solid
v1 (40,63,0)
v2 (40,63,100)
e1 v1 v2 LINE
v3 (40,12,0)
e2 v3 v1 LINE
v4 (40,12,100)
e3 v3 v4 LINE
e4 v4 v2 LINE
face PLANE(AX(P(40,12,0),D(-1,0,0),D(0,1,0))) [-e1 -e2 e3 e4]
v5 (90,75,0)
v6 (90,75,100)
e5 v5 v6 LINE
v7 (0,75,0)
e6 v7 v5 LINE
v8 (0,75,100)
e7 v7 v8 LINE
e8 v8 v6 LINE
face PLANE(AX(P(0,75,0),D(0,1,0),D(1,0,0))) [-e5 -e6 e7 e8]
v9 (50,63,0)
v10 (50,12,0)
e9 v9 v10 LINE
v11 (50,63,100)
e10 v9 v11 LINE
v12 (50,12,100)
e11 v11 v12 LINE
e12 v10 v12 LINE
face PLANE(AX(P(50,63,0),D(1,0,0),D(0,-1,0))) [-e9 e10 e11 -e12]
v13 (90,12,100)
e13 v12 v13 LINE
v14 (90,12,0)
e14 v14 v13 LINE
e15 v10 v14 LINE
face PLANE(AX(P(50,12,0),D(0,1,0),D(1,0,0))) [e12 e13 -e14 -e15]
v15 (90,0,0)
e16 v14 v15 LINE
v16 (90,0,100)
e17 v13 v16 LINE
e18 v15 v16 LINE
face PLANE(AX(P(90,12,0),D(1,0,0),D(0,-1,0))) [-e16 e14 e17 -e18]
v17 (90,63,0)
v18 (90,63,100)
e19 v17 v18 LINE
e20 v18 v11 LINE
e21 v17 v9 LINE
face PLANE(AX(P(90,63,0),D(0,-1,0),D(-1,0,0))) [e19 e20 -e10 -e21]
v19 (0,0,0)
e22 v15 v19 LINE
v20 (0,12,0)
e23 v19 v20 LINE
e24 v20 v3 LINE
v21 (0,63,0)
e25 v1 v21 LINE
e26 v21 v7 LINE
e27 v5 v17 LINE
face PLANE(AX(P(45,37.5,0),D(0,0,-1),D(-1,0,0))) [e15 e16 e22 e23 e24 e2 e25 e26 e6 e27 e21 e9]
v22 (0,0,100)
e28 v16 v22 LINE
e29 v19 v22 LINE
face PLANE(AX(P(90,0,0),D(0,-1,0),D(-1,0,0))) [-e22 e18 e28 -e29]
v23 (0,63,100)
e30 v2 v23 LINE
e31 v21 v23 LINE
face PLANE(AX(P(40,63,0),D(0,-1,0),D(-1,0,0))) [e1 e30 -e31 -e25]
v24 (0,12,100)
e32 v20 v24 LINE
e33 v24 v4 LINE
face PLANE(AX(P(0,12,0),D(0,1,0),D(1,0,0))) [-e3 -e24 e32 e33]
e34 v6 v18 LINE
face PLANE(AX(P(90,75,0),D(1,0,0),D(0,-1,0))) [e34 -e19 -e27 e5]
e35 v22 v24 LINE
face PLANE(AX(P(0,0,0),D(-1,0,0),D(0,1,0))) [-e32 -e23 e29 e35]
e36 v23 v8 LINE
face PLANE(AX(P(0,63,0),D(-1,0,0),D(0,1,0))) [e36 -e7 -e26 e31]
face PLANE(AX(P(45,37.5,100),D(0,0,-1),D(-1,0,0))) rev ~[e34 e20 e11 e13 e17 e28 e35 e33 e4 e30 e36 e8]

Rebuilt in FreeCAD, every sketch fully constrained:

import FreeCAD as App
import Part
import Sketcher
from FreeCAD import Vector
Q = App.Units.Quantity


def add_polygon(sketch, points):
    """Adds a closed chain of lines whose ends are joined by coincident constraints."""
    first, n = sketch.GeometryCount, len(points)
    for a, b in zip(points, points[1:] + points[:1]):
        sketch.addGeometry(Part.LineSegment(App.Vector(*a, 0), App.Vector(*b, 0)), False)
    for i in range(n):
        sketch.addConstraint(Sketcher.Constraint("Coincident", first + i, 2, first + (i + 1) % n, 1))

doc = App.newDocument("Part")
body = doc.addObject("PartDesign::Body", "Body")

sketch1 = body.newObject("Sketcher::SketchObject", "Sketch")
sketch1.AttachmentSupport = (doc.getObject("XY_Plane"), [""])
sketch1.MapMode = "FlatFace"
add_polygon(sketch1, [(90, 75), (0, 75), (0, 63), (40, 63), (40, 12), (0, 12), (0, 0), (90, 0), (90, 12), (50, 12), (50, 63), (90, 63)])
sketch1.addConstraint(Sketcher.Constraint("Horizontal", 0))
sketch1.addConstraint(Sketcher.Constraint("Vertical", 1))
sketch1.addConstraint(Sketcher.Constraint("Horizontal", 2))
sketch1.addConstraint(Sketcher.Constraint("Vertical", 3))
sketch1.addConstraint(Sketcher.Constraint("Horizontal", 4))
sketch1.addConstraint(Sketcher.Constraint("Vertical", 5))
sketch1.addConstraint(Sketcher.Constraint("Horizontal", 6))
sketch1.addConstraint(Sketcher.Constraint("Vertical", 7))
sketch1.addConstraint(Sketcher.Constraint("Horizontal", 8))
sketch1.addConstraint(Sketcher.Constraint("Vertical", 9))
sketch1.addConstraint(Sketcher.Constraint("Horizontal", 10))
sketch1.addConstraint(Sketcher.Constraint("Vertical", 11))
sketch1.addConstraint(Sketcher.Constraint("Coincident", 5, 2, -1, 1))
sketch1.addConstraint(Sketcher.Constraint("PointOnObject", 0, 2, -2))
sketch1.addConstraint(Sketcher.Constraint("Horizontal", 4, 2, 7, 2))
sketch1.addConstraint(Sketcher.Constraint("Horizontal", 2, 2, 9, 2))
sketch1.addConstraint(Sketcher.Constraint("Vertical", 7, 2, 10, 2))
sketch1.addConstraint(Sketcher.Constraint("Equal", 4, 8))
sketch1.addConstraint(Sketcher.Constraint("Equal", 1, 5))
sketch1.addConstraint(Sketcher.Constraint("DistanceX", 0, 2, 0, 1, Q("90 mm")))
sketch1.addConstraint(Sketcher.Constraint("DistanceX", 2, 1, 2, 2, Q("40 mm")))
sketch1.addConstraint(Sketcher.Constraint("DistanceY", 1, 2, 1, 1, Q("12 mm")))
sketch1.addConstraint(Sketcher.Constraint("DistanceY", 3, 2, 3, 1, Q("51 mm")))
pad1 = body.newObject("PartDesign::Pad", "Pad")
pad1.Profile = sketch1
pad1.Length = 100

doc.recompute()
